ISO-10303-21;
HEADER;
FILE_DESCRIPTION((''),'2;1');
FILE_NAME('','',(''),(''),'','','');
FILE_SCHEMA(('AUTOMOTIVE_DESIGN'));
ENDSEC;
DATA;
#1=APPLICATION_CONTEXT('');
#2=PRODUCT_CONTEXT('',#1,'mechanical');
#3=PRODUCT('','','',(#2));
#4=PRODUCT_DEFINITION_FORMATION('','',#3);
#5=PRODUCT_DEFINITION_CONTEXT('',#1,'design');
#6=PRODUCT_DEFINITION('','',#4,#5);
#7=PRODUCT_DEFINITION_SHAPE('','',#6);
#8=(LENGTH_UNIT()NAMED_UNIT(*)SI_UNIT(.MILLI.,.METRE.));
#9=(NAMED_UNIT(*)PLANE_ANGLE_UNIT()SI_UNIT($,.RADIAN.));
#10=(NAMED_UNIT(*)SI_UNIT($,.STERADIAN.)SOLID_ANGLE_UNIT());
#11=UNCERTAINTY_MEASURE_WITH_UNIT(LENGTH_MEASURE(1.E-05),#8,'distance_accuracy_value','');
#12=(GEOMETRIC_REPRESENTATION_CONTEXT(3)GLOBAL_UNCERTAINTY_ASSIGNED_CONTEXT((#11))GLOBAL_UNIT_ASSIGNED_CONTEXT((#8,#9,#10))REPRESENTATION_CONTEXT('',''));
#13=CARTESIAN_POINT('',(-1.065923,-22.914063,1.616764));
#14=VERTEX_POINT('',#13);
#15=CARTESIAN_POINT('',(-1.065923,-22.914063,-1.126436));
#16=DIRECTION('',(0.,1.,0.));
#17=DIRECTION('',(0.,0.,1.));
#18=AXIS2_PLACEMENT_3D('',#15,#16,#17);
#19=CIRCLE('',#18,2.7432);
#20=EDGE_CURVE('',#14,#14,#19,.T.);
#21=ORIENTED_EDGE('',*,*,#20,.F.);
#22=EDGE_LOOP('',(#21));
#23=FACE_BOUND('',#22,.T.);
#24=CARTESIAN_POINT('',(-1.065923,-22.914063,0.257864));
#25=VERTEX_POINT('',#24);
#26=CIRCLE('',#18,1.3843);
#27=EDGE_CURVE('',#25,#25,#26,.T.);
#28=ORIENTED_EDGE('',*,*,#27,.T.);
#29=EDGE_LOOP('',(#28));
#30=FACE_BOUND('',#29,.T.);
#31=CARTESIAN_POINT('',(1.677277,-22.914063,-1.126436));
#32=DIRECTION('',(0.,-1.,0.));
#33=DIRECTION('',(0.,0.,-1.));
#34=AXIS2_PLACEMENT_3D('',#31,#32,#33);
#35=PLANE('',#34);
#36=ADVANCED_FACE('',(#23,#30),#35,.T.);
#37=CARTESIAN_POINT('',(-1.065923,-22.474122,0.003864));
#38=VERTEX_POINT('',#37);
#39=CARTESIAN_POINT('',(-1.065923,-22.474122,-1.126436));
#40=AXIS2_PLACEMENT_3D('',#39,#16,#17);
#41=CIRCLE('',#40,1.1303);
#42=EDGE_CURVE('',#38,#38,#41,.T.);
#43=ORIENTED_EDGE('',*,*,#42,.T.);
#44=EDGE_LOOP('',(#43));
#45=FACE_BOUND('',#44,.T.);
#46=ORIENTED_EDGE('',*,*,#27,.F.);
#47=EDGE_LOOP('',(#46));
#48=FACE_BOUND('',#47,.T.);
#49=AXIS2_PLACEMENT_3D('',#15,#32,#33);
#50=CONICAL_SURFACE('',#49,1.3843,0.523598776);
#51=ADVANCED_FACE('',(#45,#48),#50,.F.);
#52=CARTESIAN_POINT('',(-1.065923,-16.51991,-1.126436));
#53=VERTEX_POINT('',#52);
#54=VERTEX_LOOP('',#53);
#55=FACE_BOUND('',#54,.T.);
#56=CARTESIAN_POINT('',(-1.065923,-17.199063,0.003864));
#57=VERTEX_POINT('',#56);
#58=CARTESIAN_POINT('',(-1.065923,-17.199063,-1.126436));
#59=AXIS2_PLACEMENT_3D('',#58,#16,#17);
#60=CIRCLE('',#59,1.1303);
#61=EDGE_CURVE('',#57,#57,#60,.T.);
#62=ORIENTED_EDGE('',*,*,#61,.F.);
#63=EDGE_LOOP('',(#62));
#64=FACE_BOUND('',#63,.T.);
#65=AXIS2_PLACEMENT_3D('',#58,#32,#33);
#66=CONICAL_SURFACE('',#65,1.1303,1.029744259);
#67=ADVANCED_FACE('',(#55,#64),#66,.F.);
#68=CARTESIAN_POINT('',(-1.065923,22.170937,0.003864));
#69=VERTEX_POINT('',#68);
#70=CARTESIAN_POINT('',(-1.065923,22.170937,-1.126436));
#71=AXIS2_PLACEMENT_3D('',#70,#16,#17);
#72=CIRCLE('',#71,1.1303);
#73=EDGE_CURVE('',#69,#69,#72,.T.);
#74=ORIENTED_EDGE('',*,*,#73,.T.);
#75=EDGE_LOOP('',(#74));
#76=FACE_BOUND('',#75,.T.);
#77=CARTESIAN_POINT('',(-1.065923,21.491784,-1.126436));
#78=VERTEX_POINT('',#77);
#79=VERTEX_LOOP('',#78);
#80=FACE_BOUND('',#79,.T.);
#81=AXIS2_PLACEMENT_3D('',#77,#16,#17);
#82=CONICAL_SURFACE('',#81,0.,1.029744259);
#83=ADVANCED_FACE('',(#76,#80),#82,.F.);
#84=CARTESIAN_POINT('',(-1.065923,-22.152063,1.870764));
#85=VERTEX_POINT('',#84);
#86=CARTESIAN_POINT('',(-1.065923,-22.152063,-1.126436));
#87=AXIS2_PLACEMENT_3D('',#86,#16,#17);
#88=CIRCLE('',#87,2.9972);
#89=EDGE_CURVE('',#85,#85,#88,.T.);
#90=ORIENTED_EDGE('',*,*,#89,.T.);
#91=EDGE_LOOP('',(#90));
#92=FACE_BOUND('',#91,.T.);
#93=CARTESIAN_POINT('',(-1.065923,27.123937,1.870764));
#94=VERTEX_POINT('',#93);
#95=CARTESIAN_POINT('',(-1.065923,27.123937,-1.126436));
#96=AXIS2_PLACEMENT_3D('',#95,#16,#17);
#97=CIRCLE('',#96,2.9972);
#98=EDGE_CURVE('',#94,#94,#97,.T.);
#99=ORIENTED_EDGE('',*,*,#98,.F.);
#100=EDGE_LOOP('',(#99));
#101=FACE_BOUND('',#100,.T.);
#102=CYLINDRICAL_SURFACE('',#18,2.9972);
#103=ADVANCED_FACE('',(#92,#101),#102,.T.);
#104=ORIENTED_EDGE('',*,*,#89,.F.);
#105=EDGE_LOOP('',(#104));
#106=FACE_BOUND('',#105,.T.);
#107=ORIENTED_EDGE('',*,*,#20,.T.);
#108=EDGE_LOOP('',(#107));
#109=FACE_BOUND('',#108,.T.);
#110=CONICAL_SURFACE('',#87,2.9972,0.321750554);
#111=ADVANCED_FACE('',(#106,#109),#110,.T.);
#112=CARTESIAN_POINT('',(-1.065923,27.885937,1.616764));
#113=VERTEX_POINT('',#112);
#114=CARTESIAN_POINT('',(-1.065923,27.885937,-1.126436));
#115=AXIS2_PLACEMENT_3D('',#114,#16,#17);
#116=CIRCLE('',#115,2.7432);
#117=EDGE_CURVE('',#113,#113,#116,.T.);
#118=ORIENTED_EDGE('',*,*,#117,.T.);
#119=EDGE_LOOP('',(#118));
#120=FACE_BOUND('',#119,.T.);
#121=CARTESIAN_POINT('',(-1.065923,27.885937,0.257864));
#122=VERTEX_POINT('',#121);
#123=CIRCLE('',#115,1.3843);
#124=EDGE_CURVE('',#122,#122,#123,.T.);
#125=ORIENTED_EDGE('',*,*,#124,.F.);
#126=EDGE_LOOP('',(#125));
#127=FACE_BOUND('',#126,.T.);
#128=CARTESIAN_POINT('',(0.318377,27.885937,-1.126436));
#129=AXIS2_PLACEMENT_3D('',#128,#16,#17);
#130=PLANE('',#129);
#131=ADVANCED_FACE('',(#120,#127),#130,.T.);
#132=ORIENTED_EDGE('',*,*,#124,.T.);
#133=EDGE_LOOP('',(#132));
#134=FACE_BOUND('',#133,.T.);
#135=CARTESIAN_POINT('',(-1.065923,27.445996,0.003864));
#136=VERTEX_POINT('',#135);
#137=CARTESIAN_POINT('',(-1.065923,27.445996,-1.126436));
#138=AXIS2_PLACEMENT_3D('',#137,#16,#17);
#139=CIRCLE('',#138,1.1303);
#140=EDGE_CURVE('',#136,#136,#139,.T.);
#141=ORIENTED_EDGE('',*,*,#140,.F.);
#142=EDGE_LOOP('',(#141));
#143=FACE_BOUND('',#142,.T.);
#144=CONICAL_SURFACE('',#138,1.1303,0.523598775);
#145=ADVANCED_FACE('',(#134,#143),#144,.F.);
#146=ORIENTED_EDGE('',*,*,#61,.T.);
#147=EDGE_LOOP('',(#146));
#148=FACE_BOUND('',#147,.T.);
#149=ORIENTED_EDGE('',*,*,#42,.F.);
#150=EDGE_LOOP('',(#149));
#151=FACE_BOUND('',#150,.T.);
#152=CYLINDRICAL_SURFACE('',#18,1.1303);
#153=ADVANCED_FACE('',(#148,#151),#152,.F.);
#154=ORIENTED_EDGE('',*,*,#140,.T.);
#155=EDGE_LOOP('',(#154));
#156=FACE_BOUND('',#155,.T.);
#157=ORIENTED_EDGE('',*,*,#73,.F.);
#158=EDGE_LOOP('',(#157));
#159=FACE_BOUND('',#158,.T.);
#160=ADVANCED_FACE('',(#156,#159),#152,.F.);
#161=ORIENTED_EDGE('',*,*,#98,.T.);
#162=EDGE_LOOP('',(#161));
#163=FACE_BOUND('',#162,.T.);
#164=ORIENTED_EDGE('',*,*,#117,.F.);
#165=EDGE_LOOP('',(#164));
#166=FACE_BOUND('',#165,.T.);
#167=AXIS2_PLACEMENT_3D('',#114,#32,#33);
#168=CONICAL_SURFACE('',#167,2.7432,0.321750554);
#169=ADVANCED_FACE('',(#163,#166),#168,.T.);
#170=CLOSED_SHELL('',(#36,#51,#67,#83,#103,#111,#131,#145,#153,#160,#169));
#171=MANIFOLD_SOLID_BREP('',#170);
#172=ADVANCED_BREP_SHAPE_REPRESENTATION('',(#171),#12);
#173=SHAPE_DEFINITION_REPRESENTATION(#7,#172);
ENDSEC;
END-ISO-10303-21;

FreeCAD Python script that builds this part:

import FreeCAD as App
import Part
import Sketcher

V = App.Vector
Q = App.Units.Quantity


def add_polygon(sketch, points):
    """Adds a closed chain of lines whose ends are joined by coincident constraints."""
    first, n = sketch.GeometryCount, len(points)
    for a, b in zip(points, points[1:] + points[:1]):
        sketch.addGeometry(Part.LineSegment(App.Vector(*a, 0), App.Vector(*b, 0)), False)
    for i in range(n):
        sketch.addConstraint(Sketcher.Constraint("Coincident", first + i, 2, first + (i + 1) % n, 1))

doc = App.newDocument("Part")
params = doc.addObject("Spreadsheet::Sheet", "Params")
for row, (alias, value) in enumerate([
    ("sketch1_height", "2 in"),
    ("sketch1_height2", "1.94 in"),
    ("sketch1_length", "0.02 in"),
    ("revolution_angle", "360 deg"),
], start=1):
    params.set(f"A{row}", alias)
    params.set(f"B{row}", "=" + value)
    params.setAlias(f"B{row}", alias)

body = doc.addObject("PartDesign::Body", "Body")

# Sketch on XY plane
sketch1 = body.newObject("Sketcher::SketchObject", "Sketch")
sketch1.AttachmentSupport = (doc.getObject("XY_Plane"), [""])
sketch1.MapMode = "FlatFace"
sketch1.AttachmentOffset = App.Placement(V(0, 0, -1.126436), App.Rotation())
add_polygon(sketch1, [(0.064377, -17.199063), (-1.065923, -16.51991), (-1.065923, 21.491784), (0.064377, 22.170937), (0.064377, 27.445996), (0.318377, 27.885937), (1.677277, 27.885937), (1.931277, 27.123937), (1.931277, -22.152063), (1.677277, -22.914063), (0.318377, -22.914063), (0.064377, -22.474122)])  # lines 0-11
sketch1.addGeometry(Part.LineSegment(V(-1.065923, -22.914063, 0), V(-1.065923, 27.885937, 0)), True)  # axis
sketch1.addConstraint(Sketcher.Constraint("Vertical", 1))
sketch1.addConstraint(Sketcher.Constraint("Vertical", 3))
sketch1.addConstraint(Sketcher.Constraint("Horizontal", 5))
sketch1.addConstraint(Sketcher.Constraint("Vertical", 7))
sketch1.addConstraint(Sketcher.Constraint("Horizontal", 9))
sketch1.addConstraint(Sketcher.Constraint("Vertical", 11))
sketch1.addConstraint(Sketcher.Constraint("Vertical", 12))
sketch1.addConstraint(Sketcher.Constraint("Horizontal", 9, 2, 12, 1))
sketch1.addConstraint(Sketcher.Constraint("Horizontal", 5, 2, 12, 2))
sketch1.addConstraint(Sketcher.Constraint("Vertical", 5, 2, 8, 2))
sketch1.addConstraint(Sketcher.Constraint("Vertical", 4, 2, 9, 2))
sketch1.addConstraint(Sketcher.Constraint("Vertical", 3, 2, 10, 2))
sketch1.addConstraint(Sketcher.Constraint("Vertical", 1, 2, 12, 1))
sketch1.addConstraint(Sketcher.Constraint("Equal", 3, 11))
sketch1.addConstraint(Sketcher.Constraint("Equal", 0, 2))
sketch1.addConstraint(Sketcher.Constraint("Equal", 6, 8))
sketch1.addConstraint(Sketcher.Constraint("Equal", 4, 10))
sketch1.addConstraint(Sketcher.Constraint("DistanceY", 12, 1, 12, 2, Q("2 in")))
sketch1.addConstraint(Sketcher.Constraint("Angle", 0, Q("149 deg")))
sketch1.addConstraint(Sketcher.Constraint("Angle", 4, Q("60 deg")))
sketch1.addConstraint(Sketcher.Constraint("DistanceY", 7, 2, 7, 1, Q("1.94 in")))
sketch1.addConstraint(Sketcher.Constraint("Distance", 4, Q("0.02 in")))
sketch1.addConstraint(Sketcher.Constraint("DistanceX", 5, 2, 6, 2, Q("0.01 in")))
sketch1.addConstraint(Sketcher.Constraint("DistanceX", 5, 1, 5, 2, Q("0.0535 in")))
sketch1.addConstraint(Sketcher.Constraint("DistanceY", 2, 2, 4, 2, Q("0.225 in")))
sketch1.addConstraint(Sketcher.Constraint("DistanceX", 1, 2, 5, 2, Q("0.108 in")))
sketch1.addConstraint(Sketcher.Constraint("DistanceY", 0, 2, -1, 1, Q("16.51991 mm")))
sketch1.addConstraint(Sketcher.Constraint("DistanceX", 0, 2, -1, 1, Q("1.065923 mm")))
sketch1.setExpression("Constraints[29]", "Params.sketch1_height")
sketch1.setExpression("Constraints[32]", "Params.sketch1_height2")
sketch1.setExpression("Constraints[33]", "Params.sketch1_length")
revolution = body.newObject("PartDesign::Revolution", "Revolution")
revolution.Profile = sketch1
revolution.ReferenceAxis = (sketch1, ["Axis0"])
revolution.setExpression("Angle", "Params.revolution_angle")

doc.recompute()
